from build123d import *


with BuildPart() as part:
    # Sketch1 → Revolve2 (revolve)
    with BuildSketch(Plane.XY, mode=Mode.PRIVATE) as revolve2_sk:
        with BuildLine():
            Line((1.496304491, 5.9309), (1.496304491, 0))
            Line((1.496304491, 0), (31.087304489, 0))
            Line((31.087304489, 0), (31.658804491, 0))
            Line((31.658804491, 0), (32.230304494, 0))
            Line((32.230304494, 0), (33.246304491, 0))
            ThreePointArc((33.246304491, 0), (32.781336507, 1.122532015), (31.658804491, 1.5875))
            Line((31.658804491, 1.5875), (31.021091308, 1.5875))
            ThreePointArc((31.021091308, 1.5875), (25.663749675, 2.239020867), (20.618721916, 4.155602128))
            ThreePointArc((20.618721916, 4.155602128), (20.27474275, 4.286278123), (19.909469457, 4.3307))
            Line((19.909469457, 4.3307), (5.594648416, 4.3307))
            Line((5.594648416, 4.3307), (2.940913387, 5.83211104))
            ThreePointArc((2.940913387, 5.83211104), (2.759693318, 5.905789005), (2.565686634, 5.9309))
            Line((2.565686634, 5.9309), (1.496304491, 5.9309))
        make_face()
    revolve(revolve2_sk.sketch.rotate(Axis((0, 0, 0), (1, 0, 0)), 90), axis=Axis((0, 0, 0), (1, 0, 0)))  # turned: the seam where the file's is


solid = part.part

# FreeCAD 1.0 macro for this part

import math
import FreeCAD as App
import Part
import Sketcher
from FreeCAD import Vector
Q = App.Units.Quantity

doc = App.newDocument("Part")
body = doc.addObject("PartDesign::Body", "Body")

sketch1 = body.newObject("Sketcher::SketchObject", "Sketch")
sketch1.AttachmentSupport = (doc.getObject("XY_Plane"), [""])
sketch1.MapMode = "FlatFace"
sketch1.addGeometry([
    Part.LineSegment(Vector(1.5, 5.93, 0), Vector(1.5, 0, 0)),
    Part.LineSegment(Vector(1.5, 0, 0), Vector(33.25, 0, 0)),
    Part.ArcOfCircle(Part.Circle(Vector(31.66, 0, 0), Vector(0, 0, 1), 1.59), math.radians(0), math.radians(90)),
    Part.LineSegment(Vector(31.66, 1.59, 0), Vector(31.02, 1.59, 0)),
    Part.ArcOfCircle(Part.Circle(Vector(31.02, 23.94, 0), Vector(0, 0, 1), 22.35), math.radians(-118), math.radians(-90)),
    Part.ArcOfCircle(Part.Circle(Vector(19.91, 2.81, 0), Vector(0, 0, 1), 1.52), math.radians(62), math.radians(90)),
    Part.LineSegment(Vector(19.91, 4.33, 0), Vector(5.59, 4.33, 0)),
    Part.LineSegment(Vector(5.59, 4.33, 0), Vector(2.94, 5.83, 0)),
    Part.ArcOfCircle(Part.Circle(Vector(2.57, 5.17, 0), Vector(0, 0, 1), 0.76), math.radians(61), math.radians(90)),
    Part.LineSegment(Vector(2.57, 5.93, 0), Vector(1.5, 5.93, 0)),
], False)
sketch1.addConstraint([
    Sketcher.Constraint("Coincident", 0, 2, 1, 1),
    Sketcher.Constraint("Coincident", 1, 2, 2, 1),
    Sketcher.Constraint("Tangent", 2, 2, 3, 1),
    Sketcher.Constraint("Tangent", 3, 2, 4, 2),
    Sketcher.Constraint("Tangent", 4, 1, 5, 1),
    Sketcher.Constraint("Tangent", 5, 2, 6, 1),
    Sketcher.Constraint("Coincident", 6, 2, 7, 1),
    Sketcher.Constraint("Tangent", 7, 2, 8, 1),
    Sketcher.Constraint("Tangent", 8, 2, 9, 1),
    Sketcher.Constraint("Coincident", 9, 2, 0, 1),
    Sketcher.Constraint("Vertical", 0),
    Sketcher.Constraint("Horizontal", 1),
    Sketcher.Constraint("Horizontal", 3),
    Sketcher.Constraint("Horizontal", 6),
    Sketcher.Constraint("Horizontal", 9),
    Sketcher.Constraint("PointOnObject", 2, 3, -1),
    Sketcher.Constraint("PointOnObject", 0, 2, -1),
    Sketcher.Constraint("Radius", 4, Q("0.88 in")),
    Sketcher.Constraint("Radius", 5, Q("0.06 in")),
    Sketcher.Constraint("Radius", 8, Q("0.03 in")),
    Sketcher.Constraint("Radius", 2, Q("0.0625 in")),
    Sketcher.Constraint("DistanceX", 1, 1, 1, 2, Q("1.25 in")),
    Sketcher.Constraint("Angle", 7, Q("150.5 deg")),
    Sketcher.Constraint("DistanceY", 0, 2, 0, 1, Q("0.2335 in")),
    Sketcher.Constraint("DistanceY", 5, 3, 4, 3, Q("0.832 in")),
    Sketcher.Constraint("DistanceX", 6, 2, 6, 1, Q("14.314821 mm")),
    Sketcher.Constraint("DistanceX", 3, 2, 3, 1, Q("0.637713 mm")),
    Sketcher.Constraint("DistanceX", -1, 1, 4, 3, Q("31.021091 mm")),
])
revolution = body.newObject("PartDesign::Revolution", "Revolution")
revolution.Profile = sketch1
revolution.ReferenceAxis = (sketch1, ["H_Axis"])
revolution.Angle = 360

doc.recompute()
